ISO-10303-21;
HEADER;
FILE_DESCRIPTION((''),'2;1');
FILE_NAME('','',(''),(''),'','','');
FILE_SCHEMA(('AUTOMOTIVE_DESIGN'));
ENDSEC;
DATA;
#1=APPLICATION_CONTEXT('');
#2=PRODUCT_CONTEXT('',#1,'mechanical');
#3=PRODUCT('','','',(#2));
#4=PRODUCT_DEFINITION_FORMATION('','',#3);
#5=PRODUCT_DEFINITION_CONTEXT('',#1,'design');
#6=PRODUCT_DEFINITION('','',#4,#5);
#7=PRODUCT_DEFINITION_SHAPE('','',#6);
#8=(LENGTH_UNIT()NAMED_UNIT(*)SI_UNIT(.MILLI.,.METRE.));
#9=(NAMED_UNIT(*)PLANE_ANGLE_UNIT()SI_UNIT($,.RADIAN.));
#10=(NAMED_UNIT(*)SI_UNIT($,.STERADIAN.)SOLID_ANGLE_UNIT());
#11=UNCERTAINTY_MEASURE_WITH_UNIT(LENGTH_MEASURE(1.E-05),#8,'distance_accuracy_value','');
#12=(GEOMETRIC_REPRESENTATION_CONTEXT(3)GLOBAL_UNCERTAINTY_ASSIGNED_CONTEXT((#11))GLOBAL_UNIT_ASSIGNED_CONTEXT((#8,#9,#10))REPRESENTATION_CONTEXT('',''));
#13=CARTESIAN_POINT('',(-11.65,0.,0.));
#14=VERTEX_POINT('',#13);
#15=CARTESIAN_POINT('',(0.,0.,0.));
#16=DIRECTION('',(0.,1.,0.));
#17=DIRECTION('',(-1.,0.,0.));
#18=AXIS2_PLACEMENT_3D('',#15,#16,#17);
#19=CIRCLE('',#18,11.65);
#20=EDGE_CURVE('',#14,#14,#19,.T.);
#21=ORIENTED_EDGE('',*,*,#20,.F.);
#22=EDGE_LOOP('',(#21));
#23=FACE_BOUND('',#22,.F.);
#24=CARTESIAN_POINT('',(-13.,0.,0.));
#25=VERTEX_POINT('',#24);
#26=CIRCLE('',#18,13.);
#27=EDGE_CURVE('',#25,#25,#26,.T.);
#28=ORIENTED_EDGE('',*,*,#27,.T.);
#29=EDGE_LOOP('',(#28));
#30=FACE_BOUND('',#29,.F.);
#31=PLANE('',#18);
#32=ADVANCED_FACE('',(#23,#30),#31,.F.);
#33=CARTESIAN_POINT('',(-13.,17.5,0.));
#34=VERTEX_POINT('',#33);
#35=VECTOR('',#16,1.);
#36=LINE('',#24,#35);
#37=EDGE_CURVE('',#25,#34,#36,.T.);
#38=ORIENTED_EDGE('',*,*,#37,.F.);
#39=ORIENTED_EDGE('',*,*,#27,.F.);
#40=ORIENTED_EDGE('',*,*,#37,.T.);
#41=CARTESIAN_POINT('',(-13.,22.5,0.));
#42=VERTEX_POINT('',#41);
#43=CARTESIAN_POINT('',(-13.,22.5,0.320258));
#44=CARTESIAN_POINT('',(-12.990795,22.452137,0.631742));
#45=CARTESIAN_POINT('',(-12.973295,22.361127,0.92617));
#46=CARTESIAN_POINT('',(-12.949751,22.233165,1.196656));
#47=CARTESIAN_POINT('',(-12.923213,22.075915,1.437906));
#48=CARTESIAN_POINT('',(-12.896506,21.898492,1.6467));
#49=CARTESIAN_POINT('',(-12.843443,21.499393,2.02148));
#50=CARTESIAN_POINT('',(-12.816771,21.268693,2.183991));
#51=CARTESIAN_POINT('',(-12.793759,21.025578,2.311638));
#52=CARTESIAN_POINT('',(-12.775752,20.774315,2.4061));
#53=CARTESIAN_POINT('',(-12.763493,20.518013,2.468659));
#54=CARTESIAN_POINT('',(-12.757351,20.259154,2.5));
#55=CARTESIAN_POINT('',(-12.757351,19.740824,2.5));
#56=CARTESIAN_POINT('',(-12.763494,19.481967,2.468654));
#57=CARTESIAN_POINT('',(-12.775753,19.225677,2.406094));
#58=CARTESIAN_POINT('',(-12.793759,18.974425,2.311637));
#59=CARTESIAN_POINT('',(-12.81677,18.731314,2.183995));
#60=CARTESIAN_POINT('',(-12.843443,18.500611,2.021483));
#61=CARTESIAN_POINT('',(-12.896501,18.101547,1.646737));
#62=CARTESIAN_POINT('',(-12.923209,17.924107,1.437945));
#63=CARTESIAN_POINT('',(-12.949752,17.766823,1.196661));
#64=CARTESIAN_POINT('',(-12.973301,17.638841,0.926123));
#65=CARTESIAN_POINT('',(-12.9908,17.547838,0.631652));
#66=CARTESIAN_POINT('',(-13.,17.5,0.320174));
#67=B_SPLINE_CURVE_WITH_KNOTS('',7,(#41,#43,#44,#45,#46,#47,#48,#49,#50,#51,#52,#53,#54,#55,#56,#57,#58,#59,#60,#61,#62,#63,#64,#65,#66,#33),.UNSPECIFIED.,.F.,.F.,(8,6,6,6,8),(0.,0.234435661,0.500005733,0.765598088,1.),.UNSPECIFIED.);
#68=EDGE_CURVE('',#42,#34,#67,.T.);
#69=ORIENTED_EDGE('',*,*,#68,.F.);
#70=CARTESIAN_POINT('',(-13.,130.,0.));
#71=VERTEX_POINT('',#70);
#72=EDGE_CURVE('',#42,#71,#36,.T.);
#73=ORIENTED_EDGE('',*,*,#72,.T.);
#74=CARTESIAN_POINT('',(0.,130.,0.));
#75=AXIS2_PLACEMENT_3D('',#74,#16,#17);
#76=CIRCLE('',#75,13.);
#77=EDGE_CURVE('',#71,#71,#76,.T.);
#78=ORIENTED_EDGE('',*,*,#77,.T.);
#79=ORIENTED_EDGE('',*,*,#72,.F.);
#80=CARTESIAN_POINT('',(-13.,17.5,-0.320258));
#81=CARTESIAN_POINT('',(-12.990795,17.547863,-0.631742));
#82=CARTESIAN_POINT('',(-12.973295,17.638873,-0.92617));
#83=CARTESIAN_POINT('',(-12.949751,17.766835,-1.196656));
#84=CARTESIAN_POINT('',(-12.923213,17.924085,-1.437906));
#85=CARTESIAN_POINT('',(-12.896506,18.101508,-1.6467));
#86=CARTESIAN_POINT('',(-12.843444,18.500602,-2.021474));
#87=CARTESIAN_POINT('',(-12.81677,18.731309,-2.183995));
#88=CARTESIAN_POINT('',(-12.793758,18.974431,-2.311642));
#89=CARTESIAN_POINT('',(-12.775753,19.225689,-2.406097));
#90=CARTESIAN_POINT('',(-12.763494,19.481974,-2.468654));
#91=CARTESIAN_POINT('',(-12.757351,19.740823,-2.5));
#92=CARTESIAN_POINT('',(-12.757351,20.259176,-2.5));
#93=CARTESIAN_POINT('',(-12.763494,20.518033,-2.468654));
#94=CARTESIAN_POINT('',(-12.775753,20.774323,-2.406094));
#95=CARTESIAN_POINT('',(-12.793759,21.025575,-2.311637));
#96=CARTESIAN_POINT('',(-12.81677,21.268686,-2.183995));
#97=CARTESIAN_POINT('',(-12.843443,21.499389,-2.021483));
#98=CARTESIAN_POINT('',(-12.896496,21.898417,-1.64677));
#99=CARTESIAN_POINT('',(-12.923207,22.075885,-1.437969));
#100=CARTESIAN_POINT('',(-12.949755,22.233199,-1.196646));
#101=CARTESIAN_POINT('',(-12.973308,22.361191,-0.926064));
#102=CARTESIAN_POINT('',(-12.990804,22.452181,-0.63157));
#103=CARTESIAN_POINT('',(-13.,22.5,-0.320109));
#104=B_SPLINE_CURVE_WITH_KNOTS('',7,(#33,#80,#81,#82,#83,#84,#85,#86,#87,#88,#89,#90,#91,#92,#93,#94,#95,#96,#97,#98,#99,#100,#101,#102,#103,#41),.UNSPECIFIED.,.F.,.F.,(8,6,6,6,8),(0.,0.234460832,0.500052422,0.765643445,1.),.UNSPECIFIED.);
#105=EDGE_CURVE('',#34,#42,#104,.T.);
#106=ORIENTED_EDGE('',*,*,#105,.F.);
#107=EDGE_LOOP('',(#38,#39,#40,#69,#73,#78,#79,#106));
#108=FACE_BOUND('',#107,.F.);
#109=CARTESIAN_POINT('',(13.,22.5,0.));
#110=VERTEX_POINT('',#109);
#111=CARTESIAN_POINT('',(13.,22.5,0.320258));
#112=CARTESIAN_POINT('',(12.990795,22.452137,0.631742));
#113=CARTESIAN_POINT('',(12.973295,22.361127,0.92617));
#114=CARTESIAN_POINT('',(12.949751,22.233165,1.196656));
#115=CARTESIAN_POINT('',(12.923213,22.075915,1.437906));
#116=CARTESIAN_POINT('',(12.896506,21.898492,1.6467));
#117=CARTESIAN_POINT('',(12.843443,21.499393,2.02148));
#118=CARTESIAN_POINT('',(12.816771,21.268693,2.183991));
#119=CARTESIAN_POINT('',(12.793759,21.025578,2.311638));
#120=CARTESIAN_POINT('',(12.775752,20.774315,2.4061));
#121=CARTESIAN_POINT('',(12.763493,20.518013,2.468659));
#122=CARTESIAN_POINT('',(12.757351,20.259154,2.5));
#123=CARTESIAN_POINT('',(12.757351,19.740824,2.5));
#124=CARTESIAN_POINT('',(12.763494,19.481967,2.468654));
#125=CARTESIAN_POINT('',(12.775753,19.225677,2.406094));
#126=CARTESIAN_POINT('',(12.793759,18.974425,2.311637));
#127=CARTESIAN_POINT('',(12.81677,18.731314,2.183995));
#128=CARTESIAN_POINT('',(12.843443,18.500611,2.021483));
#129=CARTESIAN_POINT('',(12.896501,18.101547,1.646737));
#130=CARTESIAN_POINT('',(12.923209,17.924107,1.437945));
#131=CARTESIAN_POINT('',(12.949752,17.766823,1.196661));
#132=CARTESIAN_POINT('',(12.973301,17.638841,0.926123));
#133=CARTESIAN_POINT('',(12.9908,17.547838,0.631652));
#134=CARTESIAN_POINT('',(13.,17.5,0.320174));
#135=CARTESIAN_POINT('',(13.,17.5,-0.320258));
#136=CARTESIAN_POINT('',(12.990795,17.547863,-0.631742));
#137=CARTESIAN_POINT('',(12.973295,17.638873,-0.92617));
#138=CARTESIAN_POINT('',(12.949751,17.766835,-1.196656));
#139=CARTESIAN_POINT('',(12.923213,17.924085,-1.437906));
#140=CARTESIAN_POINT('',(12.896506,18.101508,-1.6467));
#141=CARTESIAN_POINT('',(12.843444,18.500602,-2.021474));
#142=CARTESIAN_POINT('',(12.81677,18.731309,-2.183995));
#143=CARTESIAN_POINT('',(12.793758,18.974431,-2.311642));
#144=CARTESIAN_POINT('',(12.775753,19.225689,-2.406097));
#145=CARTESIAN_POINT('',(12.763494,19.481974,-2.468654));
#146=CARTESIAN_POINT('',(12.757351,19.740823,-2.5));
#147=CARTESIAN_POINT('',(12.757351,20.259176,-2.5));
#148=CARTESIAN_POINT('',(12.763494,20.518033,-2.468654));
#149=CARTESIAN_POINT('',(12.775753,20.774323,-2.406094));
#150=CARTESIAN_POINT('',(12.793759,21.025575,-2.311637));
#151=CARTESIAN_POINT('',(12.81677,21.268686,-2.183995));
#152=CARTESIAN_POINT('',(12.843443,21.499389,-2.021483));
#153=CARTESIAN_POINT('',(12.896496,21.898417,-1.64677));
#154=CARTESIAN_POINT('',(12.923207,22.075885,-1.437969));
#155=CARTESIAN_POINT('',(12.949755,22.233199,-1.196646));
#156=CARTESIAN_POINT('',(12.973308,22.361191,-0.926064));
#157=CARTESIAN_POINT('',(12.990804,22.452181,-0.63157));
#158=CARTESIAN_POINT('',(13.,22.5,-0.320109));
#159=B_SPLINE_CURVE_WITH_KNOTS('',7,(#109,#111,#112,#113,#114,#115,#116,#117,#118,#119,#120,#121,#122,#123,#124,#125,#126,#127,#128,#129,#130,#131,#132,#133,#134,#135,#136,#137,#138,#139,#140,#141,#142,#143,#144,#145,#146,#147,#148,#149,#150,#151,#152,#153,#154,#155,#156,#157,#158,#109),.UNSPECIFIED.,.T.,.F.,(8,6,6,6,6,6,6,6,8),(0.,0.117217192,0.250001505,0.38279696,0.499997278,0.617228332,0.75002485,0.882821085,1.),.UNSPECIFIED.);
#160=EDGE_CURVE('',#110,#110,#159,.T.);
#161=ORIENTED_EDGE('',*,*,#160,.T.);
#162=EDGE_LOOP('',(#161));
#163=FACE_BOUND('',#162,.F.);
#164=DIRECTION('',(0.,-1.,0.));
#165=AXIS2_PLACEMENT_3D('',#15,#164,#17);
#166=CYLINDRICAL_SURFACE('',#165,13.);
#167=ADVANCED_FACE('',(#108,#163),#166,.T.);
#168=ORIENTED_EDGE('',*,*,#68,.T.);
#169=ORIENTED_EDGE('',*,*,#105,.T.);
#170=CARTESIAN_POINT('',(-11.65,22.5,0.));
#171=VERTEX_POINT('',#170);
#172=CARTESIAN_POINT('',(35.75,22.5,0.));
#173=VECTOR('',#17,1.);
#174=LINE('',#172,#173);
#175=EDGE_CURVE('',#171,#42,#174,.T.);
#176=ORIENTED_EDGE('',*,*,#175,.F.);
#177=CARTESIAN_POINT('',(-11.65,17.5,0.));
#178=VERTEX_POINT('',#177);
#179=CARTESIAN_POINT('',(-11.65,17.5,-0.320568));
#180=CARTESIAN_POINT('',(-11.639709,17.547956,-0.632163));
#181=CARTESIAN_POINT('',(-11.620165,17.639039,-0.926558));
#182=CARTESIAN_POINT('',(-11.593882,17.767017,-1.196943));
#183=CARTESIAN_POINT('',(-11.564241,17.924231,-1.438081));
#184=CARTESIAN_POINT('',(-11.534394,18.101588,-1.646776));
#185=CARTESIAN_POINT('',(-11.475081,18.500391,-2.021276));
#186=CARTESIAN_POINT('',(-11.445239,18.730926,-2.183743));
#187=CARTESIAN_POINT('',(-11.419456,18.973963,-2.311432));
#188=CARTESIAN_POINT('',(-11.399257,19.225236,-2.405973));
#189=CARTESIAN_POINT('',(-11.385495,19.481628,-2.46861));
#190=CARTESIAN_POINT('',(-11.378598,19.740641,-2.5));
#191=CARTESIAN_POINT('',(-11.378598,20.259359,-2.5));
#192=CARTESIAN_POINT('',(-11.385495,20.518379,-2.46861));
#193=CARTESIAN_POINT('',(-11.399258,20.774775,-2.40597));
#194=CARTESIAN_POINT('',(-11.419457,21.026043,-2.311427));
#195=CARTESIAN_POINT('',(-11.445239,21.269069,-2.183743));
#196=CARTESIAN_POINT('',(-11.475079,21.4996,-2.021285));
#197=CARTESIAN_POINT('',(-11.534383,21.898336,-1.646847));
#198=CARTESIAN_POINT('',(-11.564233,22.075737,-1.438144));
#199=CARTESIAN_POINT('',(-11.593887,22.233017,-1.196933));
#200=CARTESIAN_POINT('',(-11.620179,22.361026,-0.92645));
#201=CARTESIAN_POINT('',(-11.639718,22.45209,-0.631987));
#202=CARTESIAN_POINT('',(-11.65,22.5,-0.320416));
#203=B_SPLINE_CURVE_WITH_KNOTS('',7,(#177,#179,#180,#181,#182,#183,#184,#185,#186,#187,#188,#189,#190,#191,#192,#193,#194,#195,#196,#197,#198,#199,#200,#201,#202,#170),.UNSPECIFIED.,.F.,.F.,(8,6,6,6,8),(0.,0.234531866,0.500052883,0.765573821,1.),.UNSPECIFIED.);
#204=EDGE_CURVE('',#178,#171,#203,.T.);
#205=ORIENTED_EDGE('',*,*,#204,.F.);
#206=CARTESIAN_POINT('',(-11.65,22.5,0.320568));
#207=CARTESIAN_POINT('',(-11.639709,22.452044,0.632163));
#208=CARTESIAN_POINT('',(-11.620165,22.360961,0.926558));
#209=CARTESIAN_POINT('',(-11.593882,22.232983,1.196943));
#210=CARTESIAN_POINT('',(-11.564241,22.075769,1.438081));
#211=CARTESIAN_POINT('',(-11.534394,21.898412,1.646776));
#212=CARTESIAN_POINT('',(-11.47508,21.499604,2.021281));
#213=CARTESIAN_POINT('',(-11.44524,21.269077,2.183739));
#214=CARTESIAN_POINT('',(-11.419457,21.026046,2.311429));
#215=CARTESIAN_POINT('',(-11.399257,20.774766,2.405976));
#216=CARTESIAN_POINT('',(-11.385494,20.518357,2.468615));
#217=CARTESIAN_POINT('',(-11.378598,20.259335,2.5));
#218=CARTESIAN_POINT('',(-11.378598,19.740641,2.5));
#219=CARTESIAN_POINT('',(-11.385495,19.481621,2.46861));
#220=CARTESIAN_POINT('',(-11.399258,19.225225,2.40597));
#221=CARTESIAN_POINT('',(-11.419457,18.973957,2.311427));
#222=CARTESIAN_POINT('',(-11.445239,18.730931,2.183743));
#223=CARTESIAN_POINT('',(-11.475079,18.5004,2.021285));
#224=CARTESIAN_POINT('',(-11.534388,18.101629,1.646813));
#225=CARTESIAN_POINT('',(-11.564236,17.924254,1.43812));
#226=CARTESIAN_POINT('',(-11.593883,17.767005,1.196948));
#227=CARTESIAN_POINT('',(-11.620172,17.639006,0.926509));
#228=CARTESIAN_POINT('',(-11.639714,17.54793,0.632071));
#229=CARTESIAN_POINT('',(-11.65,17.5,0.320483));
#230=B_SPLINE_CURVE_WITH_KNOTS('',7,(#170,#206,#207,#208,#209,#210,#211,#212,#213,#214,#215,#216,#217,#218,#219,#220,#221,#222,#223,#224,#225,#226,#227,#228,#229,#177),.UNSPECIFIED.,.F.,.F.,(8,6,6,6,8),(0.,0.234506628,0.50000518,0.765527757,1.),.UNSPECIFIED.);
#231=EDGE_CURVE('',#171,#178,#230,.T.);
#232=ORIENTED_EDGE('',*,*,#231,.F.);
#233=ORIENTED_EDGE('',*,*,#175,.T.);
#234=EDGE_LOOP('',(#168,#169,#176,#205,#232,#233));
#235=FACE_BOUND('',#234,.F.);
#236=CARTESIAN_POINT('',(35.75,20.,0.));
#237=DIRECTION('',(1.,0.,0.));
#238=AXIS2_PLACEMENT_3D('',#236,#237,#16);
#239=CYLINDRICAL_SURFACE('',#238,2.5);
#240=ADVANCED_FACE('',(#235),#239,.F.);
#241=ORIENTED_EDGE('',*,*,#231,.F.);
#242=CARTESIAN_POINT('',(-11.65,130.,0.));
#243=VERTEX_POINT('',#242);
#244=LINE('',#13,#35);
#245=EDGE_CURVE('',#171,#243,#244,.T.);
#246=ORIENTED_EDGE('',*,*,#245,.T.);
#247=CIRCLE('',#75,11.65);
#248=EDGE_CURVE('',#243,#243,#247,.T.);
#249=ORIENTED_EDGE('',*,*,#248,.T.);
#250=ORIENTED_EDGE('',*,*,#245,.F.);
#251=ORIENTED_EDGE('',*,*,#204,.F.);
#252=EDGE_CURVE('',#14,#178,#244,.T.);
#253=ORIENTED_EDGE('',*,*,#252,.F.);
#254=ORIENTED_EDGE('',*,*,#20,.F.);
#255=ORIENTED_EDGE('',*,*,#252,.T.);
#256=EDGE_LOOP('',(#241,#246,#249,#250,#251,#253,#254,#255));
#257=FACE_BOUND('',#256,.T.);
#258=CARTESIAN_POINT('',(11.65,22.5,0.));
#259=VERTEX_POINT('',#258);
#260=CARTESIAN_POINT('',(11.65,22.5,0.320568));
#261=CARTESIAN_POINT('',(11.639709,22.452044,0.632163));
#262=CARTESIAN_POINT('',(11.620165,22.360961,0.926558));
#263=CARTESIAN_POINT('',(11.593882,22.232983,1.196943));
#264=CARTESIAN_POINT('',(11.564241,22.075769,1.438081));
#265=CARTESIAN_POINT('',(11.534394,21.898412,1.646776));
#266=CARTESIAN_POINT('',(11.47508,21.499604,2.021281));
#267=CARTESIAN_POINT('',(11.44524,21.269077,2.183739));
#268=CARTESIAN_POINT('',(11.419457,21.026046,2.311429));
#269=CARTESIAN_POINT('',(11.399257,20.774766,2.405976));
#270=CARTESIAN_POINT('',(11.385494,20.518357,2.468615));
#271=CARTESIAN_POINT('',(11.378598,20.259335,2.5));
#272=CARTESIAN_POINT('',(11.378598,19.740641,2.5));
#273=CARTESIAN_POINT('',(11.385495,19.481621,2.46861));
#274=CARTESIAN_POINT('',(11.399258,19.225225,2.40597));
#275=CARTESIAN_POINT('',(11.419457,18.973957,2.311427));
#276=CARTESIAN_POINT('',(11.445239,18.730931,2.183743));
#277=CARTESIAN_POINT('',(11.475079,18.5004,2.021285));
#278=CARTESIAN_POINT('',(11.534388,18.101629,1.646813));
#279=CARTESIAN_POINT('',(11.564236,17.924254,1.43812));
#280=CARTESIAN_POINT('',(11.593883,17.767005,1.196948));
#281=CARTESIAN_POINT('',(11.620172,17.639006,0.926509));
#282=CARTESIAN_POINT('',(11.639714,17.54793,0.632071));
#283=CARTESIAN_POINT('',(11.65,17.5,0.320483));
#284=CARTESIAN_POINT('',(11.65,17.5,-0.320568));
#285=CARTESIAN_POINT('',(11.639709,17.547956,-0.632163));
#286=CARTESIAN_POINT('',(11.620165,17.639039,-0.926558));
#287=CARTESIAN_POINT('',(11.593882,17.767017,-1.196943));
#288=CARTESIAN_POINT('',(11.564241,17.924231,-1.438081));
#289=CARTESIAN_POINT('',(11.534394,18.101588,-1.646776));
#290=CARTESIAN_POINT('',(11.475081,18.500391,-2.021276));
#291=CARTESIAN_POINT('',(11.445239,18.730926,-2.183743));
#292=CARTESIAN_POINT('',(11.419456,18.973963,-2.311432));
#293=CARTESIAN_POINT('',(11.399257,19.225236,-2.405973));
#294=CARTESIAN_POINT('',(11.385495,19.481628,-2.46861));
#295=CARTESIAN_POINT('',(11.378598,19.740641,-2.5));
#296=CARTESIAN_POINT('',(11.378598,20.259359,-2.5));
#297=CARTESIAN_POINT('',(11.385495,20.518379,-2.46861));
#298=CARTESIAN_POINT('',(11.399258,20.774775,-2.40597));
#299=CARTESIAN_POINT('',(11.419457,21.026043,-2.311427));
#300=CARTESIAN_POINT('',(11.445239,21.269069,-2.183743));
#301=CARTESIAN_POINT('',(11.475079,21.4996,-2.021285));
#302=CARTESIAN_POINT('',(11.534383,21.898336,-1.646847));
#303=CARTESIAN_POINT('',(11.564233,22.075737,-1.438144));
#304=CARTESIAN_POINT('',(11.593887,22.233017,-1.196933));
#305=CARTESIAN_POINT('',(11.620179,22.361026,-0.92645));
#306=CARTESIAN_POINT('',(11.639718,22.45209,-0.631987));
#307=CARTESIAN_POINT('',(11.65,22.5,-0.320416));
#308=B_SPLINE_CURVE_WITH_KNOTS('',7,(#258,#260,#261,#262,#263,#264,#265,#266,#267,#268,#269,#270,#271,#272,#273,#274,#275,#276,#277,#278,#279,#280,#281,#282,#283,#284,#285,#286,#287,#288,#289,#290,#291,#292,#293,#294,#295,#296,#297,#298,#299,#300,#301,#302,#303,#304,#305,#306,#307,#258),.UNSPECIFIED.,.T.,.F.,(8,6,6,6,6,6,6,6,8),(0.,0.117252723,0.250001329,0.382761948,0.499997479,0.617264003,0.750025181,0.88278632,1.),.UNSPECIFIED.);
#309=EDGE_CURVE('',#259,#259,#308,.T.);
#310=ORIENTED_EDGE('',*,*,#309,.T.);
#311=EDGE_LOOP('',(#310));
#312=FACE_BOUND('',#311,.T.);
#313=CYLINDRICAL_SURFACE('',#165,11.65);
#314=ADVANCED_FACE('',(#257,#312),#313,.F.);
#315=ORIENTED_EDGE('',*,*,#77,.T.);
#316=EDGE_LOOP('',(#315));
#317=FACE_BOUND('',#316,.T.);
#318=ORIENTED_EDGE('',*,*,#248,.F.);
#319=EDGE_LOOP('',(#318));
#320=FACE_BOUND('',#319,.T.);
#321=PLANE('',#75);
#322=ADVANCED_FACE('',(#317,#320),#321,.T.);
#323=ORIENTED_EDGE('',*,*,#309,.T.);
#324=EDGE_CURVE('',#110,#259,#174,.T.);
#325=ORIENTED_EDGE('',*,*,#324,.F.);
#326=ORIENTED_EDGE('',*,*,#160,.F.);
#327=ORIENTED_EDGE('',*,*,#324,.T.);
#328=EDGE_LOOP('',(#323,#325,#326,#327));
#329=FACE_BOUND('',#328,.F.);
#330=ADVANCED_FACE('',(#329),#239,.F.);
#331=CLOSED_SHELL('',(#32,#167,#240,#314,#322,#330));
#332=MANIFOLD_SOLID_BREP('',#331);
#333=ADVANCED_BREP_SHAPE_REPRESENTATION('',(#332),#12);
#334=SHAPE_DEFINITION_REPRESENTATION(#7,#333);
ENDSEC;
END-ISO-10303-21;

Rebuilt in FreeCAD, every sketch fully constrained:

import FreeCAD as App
import Part
import Sketcher
Q = App.Units.Quantity

doc = App.newDocument("Part")
body = doc.addObject("PartDesign::Body", "Body")

sketch1 = body.newObject("Sketcher::SketchObject", "Sketch")
sketch1.AttachmentSupport = (doc.getObject("XZ_Plane"), [""])
sketch1.MapMode = "FlatFace"
sketch1.addGeometry([
    Part.Circle(App.Vector(0, 0, 0), App.Vector(0, 0, 1), 13),
    Part.Circle(App.Vector(0, 0, 0), App.Vector(0, 0, 1), 12),
], False)
sketch1.addConstraint([
    Sketcher.Constraint("Coincident", 0, 3, -1, 1),
    Sketcher.Constraint("Coincident", 1, 3, -1, 1),
    Sketcher.Constraint("Diameter", 0, Q("26 mm")),
    Sketcher.Constraint("Diameter", 1, Q("23.3 mm")),
])
pad1 = body.newObject("PartDesign::Pad", "Pad")
pad1.Profile = sketch1
pad1.Length = 130
pad1.Reversed = True

sketch2 = body.newObject("Sketcher::SketchObject", "Sketch001")
sketch2.AttachmentSupport = (doc.getObject("YZ_Plane"), [""])
sketch2.MapMode = "FlatFace"
sketch2.AttachmentOffset = App.Placement(App.Vector(0, 0, 35.75), App.Rotation())
sketch2.addGeometry(Part.Circle(App.Vector(20, 0, 0), App.Vector(0, 0, 1), 2.5), False)
sketch2.addConstraint([
    Sketcher.Constraint("PointOnObject", 0, 3, -1),
    Sketcher.Constraint("Diameter", 0, Q("5 mm")),
    Sketcher.Constraint("DistanceX", -1, 1, 0, 3, Q("20 mm")),
])
pocket1 = body.newObject("PartDesign::Pocket", "Pocket")
pocket1.Profile = sketch2
pocket1.Type = "ThroughAll"

doc.recompute()
